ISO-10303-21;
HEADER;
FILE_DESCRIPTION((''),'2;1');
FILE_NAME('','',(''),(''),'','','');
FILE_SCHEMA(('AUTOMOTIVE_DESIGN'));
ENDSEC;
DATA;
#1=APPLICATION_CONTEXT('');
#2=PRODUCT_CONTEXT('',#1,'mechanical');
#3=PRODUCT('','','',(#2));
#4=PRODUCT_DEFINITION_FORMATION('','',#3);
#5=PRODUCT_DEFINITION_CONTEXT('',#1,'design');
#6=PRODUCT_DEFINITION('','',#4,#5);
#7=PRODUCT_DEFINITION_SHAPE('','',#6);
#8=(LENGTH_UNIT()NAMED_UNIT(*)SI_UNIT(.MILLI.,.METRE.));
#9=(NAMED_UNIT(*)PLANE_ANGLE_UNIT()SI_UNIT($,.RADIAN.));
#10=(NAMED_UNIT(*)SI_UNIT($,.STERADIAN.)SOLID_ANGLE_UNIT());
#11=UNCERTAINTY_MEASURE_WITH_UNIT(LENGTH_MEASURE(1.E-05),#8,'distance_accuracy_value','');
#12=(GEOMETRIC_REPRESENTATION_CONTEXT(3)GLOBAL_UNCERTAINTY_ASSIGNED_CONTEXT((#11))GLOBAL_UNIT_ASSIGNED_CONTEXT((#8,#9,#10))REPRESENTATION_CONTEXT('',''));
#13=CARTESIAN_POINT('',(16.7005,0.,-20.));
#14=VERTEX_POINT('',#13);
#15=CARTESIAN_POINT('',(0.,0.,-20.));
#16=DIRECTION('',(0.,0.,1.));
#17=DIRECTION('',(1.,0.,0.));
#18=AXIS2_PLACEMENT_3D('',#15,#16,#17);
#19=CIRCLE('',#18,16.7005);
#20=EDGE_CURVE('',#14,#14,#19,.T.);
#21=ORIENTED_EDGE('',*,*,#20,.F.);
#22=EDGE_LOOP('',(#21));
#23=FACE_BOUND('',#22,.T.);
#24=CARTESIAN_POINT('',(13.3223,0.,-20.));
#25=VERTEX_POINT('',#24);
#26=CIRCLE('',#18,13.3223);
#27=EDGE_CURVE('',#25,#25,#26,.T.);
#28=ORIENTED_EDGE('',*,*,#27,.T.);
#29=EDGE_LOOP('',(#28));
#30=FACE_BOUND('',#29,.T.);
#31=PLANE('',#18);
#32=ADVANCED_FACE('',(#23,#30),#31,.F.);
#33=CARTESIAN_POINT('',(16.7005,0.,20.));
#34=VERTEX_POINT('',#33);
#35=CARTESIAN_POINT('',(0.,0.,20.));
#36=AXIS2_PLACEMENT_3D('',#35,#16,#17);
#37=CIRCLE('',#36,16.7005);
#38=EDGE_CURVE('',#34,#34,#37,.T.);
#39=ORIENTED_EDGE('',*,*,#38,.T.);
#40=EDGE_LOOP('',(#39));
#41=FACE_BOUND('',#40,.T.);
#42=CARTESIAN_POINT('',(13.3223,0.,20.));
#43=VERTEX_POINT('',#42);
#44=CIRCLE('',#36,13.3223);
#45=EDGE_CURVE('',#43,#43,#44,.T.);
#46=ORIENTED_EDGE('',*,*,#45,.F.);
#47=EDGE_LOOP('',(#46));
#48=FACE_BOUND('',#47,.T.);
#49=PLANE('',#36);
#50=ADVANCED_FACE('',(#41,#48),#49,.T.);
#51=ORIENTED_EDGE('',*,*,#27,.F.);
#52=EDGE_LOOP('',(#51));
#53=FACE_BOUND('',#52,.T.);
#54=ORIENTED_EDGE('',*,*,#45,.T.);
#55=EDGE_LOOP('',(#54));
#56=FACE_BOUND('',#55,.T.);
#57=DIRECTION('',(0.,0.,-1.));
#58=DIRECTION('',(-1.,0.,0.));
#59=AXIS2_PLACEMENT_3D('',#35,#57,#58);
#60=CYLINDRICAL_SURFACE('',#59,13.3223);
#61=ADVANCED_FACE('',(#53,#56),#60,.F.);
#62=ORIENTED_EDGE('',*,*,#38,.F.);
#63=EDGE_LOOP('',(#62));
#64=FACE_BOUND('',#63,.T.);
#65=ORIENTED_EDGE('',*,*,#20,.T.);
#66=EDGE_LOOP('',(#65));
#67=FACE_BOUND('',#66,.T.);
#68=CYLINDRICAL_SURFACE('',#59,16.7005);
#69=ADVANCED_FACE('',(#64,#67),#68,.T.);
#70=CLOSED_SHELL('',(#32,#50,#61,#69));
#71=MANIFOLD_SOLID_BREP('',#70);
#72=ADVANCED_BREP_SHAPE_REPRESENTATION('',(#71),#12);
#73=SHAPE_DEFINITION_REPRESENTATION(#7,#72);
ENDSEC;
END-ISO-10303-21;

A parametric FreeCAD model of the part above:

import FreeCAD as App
import Part
import Sketcher
Q = App.Units.Quantity

doc = App.newDocument("Part")
params = doc.addObject("Spreadsheet::Sheet", "Params")
for row, (alias, value) in enumerate([
    ("sketch1_diameter", "1.315 in"),
    ("sketch1_diameter2", "1.049 in"),
    ("pad1_length", "40 mm"),
], start=1):
    params.set(f"A{row}", alias)
    params.set(f"B{row}", "=" + value)
    params.setAlias(f"B{row}", alias)

body = doc.addObject("PartDesign::Body", "Body")

# Sketch on XY plane
sketch1 = body.newObject("Sketcher::SketchObject", "Sketch")
sketch1.AttachmentSupport = (doc.getObject("XY_Plane"), [""])
sketch1.MapMode = "FlatFace"
sketch1.addGeometry(Part.Circle(App.Vector(0, 0, 0), App.Vector(0, 0, 1), 16.7005), False)
sketch1.addGeometry(Part.Circle(App.Vector(0, 0, 0), App.Vector(0, 0, 1), 13.3223), False)
sketch1.addConstraint(Sketcher.Constraint("Coincident", 0, 3, -1, 1))
sketch1.addConstraint(Sketcher.Constraint("Coincident", 1, 3, -1, 1))
sketch1.addConstraint(Sketcher.Constraint("Diameter", 0, Q("1.315 in")))
sketch1.addConstraint(Sketcher.Constraint("Diameter", 1, Q("1.049 in")))
sketch1.setExpression("Constraints[2]", "Params.sketch1_diameter")
sketch1.setExpression("Constraints[3]", "Params.sketch1_diameter2")
pad1 = body.newObject("PartDesign::Pad", "Pad")
pad1.Profile = sketch1
pad1.setExpression("Length", "Params.pad1_length")
pad1.Midplane = True

doc.recompute()
